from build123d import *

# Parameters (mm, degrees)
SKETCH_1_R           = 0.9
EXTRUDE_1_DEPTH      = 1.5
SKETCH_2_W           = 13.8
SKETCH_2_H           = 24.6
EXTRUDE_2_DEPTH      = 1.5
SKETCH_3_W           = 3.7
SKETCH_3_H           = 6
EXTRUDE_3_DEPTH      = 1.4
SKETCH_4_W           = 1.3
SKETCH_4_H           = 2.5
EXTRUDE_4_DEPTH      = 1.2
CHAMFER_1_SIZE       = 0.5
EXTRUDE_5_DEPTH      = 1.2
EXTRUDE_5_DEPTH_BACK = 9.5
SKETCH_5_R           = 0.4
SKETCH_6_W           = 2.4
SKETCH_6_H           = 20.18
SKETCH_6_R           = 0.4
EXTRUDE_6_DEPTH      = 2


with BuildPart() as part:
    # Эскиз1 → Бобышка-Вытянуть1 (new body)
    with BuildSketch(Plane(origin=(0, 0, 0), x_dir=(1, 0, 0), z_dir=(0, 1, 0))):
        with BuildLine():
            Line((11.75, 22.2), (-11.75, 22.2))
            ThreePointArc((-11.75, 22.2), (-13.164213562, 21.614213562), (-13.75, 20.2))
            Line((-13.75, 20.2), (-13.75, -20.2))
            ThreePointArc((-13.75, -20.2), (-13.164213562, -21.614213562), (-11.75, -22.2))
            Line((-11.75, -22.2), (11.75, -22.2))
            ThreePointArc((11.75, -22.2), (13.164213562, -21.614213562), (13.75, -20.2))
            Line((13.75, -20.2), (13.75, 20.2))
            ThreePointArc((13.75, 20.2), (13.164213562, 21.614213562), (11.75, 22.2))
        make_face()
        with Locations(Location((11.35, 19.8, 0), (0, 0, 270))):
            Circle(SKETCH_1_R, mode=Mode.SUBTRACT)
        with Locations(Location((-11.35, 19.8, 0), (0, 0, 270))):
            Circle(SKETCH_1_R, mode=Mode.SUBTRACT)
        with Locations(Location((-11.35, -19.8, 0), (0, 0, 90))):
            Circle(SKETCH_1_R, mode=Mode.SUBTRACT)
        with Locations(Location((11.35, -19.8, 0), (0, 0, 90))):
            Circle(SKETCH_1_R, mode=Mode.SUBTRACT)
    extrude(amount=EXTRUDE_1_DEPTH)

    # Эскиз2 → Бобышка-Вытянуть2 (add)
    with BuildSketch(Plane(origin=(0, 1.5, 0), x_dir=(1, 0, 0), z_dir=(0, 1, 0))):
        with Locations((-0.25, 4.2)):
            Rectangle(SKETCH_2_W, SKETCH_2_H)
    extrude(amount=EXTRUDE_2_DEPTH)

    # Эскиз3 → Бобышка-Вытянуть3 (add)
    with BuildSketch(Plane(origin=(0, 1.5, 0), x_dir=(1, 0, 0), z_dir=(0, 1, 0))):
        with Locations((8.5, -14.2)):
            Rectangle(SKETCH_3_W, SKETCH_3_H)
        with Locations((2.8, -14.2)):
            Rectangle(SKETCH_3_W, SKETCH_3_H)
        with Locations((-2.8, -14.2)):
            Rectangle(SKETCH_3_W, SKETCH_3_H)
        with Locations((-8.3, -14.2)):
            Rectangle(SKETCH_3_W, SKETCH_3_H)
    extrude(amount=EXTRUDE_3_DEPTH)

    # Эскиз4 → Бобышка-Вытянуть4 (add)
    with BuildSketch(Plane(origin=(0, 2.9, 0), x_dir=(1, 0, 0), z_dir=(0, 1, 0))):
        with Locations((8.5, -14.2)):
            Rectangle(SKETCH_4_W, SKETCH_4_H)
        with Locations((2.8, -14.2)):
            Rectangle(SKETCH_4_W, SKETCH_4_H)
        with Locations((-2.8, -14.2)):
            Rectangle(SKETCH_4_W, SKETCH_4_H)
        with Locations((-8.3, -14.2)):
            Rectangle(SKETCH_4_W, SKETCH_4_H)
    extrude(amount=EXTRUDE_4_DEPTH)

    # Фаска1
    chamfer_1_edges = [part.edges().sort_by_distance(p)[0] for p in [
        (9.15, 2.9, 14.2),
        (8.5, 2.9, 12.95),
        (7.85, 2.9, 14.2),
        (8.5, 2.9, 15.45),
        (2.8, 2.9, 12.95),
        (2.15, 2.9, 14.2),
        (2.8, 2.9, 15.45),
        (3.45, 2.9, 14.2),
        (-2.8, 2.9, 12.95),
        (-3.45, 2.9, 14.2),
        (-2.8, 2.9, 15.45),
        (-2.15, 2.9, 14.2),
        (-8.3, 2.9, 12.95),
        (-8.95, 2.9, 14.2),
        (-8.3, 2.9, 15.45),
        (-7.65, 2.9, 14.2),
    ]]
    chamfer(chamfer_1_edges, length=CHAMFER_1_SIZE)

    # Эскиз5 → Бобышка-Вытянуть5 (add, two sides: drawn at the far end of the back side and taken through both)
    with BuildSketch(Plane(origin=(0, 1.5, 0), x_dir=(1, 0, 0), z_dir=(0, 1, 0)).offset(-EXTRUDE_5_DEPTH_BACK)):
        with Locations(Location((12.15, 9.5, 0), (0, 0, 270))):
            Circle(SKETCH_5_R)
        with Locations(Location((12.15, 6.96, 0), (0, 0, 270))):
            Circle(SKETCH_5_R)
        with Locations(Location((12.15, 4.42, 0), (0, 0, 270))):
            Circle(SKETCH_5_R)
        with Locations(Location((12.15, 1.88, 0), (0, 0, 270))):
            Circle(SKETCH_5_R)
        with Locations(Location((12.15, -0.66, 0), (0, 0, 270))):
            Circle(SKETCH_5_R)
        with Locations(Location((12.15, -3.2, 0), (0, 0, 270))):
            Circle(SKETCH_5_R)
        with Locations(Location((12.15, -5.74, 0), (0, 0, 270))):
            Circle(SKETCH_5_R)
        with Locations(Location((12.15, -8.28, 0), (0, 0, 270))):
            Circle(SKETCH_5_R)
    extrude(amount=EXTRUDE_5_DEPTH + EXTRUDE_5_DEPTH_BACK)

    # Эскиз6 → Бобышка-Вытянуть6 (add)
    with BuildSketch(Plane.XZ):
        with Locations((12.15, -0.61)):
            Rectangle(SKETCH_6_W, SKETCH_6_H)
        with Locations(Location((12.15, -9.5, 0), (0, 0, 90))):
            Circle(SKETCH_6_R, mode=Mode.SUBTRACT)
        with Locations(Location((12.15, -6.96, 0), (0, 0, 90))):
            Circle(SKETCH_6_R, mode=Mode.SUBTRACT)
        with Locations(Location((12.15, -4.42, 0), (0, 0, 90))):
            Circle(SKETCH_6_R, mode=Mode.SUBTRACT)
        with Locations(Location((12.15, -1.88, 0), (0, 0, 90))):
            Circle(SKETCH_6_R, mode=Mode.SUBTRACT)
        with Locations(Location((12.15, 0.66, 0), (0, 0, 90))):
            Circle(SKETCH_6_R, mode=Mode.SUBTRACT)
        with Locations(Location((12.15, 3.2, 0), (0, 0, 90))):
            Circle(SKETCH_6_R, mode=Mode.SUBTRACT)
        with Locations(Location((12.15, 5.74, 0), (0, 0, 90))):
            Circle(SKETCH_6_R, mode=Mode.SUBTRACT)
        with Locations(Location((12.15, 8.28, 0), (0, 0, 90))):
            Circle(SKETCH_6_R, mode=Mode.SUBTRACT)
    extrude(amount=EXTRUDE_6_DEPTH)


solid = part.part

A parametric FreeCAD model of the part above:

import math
import FreeCAD as App
import Part
import Sketcher
from FreeCAD import Vector
Q = App.Units.Quantity


def edges_at(feature, points):
    """Names of the edges that pass closest to the given points."""
    edges = feature.Shape.Edges
    near = lambda p: min(range(len(edges)), key=lambda i: edges[i].distToShape(Part.Vertex(*p))[0])
    return sorted({f"Edge{near(p) + 1}" for p in points})


def add_polygon(sketch, points):
    """Adds a closed chain of lines whose ends are joined by coincident constraints."""
    first, n = sketch.GeometryCount, len(points)
    for a, b in zip(points, points[1:] + points[:1]):
        sketch.addGeometry(Part.LineSegment(App.Vector(*a, 0), App.Vector(*b, 0)), False)
    for i in range(n):
        sketch.addConstraint(Sketcher.Constraint("Coincident", first + i, 2, first + (i + 1) % n, 1))

doc = App.newDocument("Part")
body = doc.addObject("PartDesign::Body", "Body")

# Sketch on XZ plane
sketch1 = body.newObject("Sketcher::SketchObject", "Sketch")
sketch1.AttachmentSupport = (doc.getObject("XZ_Plane"), [""])
sketch1.MapMode = "FlatFace"
sketch1.addGeometry([
    Part.LineSegment(Vector(11.75, -22.2, 0), Vector(-11.75, -22.2, 0)),  # 0
    Part.ArcOfCircle(Part.Circle(Vector(-11.75, -20.2, 0), Vector(0, 0, 1), 2), math.radians(-180), math.radians(-90)),  # 1
    Part.LineSegment(Vector(-13.75, -20.2, 0), Vector(-13.75, 20.2, 0)),  # 2
    Part.ArcOfCircle(Part.Circle(Vector(-11.75, 20.2, 0), Vector(0, 0, 1), 2), math.radians(90), math.radians(180)),  # 3
    Part.LineSegment(Vector(-11.75, 22.2, 0), Vector(11.75, 22.2, 0)),  # 4
    Part.ArcOfCircle(Part.Circle(Vector(11.75, 20.2, 0), Vector(0, 0, 1), 2), math.radians(0), math.radians(90)),  # 5
    Part.LineSegment(Vector(13.75, 20.2, 0), Vector(13.75, -20.2, 0)),  # 6
    Part.ArcOfCircle(Part.Circle(Vector(11.75, -20.2, 0), Vector(0, 0, 1), 2), math.radians(-90), math.radians(0)),  # 7
    Part.Circle(Vector(-11.35, 19.8, 0), Vector(0, 0, 1), 0.9),  # 8
    Part.Circle(Vector(11.35, 19.8, 0), Vector(0, 0, 1), 0.9),  # 9
    Part.Circle(Vector(-11.35, -19.8, 0), Vector(0, 0, 1), 0.9),  # 10
    Part.Circle(Vector(11.35, -19.8, 0), Vector(0, 0, 1), 0.9),  # 11
], False)
sketch1.addConstraint([
    Sketcher.Constraint("Tangent", 0, 2, 1, 2),
    Sketcher.Constraint("Tangent", 1, 1, 2, 1),
    Sketcher.Constraint("Tangent", 2, 2, 3, 2),
    Sketcher.Constraint("Tangent", 3, 1, 4, 1),
    Sketcher.Constraint("Tangent", 4, 2, 5, 2),
    Sketcher.Constraint("Tangent", 5, 1, 6, 1),
    Sketcher.Constraint("Tangent", 6, 2, 7, 2),
    Sketcher.Constraint("Tangent", 7, 1, 0, 1),
    Sketcher.Constraint("Horizontal", 0),
    Sketcher.Constraint("Vertical", 2),
    Sketcher.Constraint("Horizontal", 4),
    Sketcher.Constraint("Vertical", 6),
    Sketcher.Constraint("Equal", 1, 3),
    Sketcher.Constraint("Equal", 3, 5),
    Sketcher.Constraint("Equal", 5, 7),
    Sketcher.Constraint("Equal", 8, 9),
    Sketcher.Constraint("Equal", 9, 10),
    Sketcher.Constraint("Equal", 10, 11),
    Sketcher.Constraint("Symmetric", 1, 3, 5, 3, -1, 1),
    Sketcher.Constraint("Symmetric", 9, 3, 10, 3, -1, 1),
    Sketcher.Constraint("Symmetric", 8, 3, 11, 3, -1, 1),
    Sketcher.Constraint("Symmetric", 8, 3, 9, 3, -2),
    Sketcher.Constraint("Radius", 1, Q("2 mm")),
    Sketcher.Constraint("Diameter", 8, Q("1.8 mm")),
    Sketcher.Constraint("DistanceX", 0, 2, 0, 1, Q("23.5 mm")),
    Sketcher.Constraint("DistanceY", 2, 1, 2, 2, Q("40.4 mm")),
    Sketcher.Constraint("DistanceY", 1, 3, 8, 3, Q("40 mm")),
    Sketcher.Constraint("DistanceX", 3, 3, 8, 3, Q("0.4 mm")),
])
pad1 = body.newObject("PartDesign::Pad", "Pad")
pad1.Profile = sketch1
pad1.Length = 1.5
pad1.Reversed = True

# Sketch on XZ plane
sketch2 = body.newObject("Sketcher::SketchObject", "Sketch001")
sketch2.AttachmentSupport = (doc.getObject("XZ_Plane"), [""])
sketch2.MapMode = "FlatFace"
sketch2.AttachmentOffset = App.Placement(Vector(0, 0, -1.5), App.Rotation())
add_polygon(sketch2, [(-7.15, -16.5), (-7.15, 8.1), (6.65, 8.1), (6.65, -16.5)])  # lines 0-3
sketch2.addConstraint([
    Sketcher.Constraint("Vertical", 0),
    Sketcher.Constraint("Horizontal", 1),
    Sketcher.Constraint("Vertical", 2),
    Sketcher.Constraint("Horizontal", 3),
    Sketcher.Constraint("DistanceX", 1, 1, 1, 2, Q("13.8 mm")),
    Sketcher.Constraint("DistanceY", 0, 1, 0, 2, Q("24.6 mm")),
    Sketcher.Constraint("DistanceY", -1, 1, 0, 2, Q("8.1 mm")),
    Sketcher.Constraint("DistanceX", 0, 2, -1, 1, Q("7.15 mm")),
])
pad2 = body.newObject("PartDesign::Pad", "Pad001")
pad2.Profile = sketch2
pad2.Length = 1.5
pad2.Reversed = True

# Sketch on XZ plane
sketch3 = body.newObject("Sketcher::SketchObject", "Sketch002")
sketch3.AttachmentSupport = (doc.getObject("XZ_Plane"), [""])
sketch3.MapMode = "FlatFace"
sketch3.AttachmentOffset = App.Placement(Vector(0, 0, -1.5), App.Rotation())
add_polygon(sketch3, [(6.65, 11.2), (6.65, 17.2), (10.35, 17.2), (10.35, 11.2)])  # lines 0-3
add_polygon(sketch3, [(0.95, 11.2), (0.95, 17.2), (4.65, 17.2), (4.65, 11.2)])  # lines 4-7
add_polygon(sketch3, [(-4.65, 11.2), (-4.65, 17.2), (-0.95, 17.2), (-0.95, 11.2)])  # lines 8-11
add_polygon(sketch3, [(-10.15, 11.2), (-10.15, 17.2), (-6.45, 17.2), (-6.45, 11.2)])  # lines 12-15
sketch3.addConstraint([
    Sketcher.Constraint("Vertical", 0),
    Sketcher.Constraint("Horizontal", 1),
    Sketcher.Constraint("Vertical", 2),
    Sketcher.Constraint("Horizontal", 3),
    Sketcher.Constraint("Vertical", 4),
    Sketcher.Constraint("Horizontal", 5),
    Sketcher.Constraint("Vertical", 6),
    Sketcher.Constraint("Horizontal", 7),
    Sketcher.Constraint("Vertical", 8),
    Sketcher.Constraint("Horizontal", 9),
    Sketcher.Constraint("Vertical", 10),
    Sketcher.Constraint("Horizontal", 11),
    Sketcher.Constraint("Vertical", 12),
    Sketcher.Constraint("Horizontal", 13),
    Sketcher.Constraint("Vertical", 14),
    Sketcher.Constraint("Horizontal", 15),
    Sketcher.Constraint("Symmetric", 5, 2, 8, 2, -2),
    Sketcher.Constraint("Symmetric", 7, 2, 10, 2, -2),
    Sketcher.Constraint("Horizontal", 1, 2, 4, 2),
    Sketcher.Constraint("Horizontal", 3, 2, 6, 2),
    Sketcher.Constraint("Horizontal", 9, 2, 12, 2),
    Sketcher.Constraint("Horizontal", 11, 2, 14, 2),
    Sketcher.Constraint("Equal", 3, 5),
    Sketcher.Constraint("Equal", 11, 13),
    Sketcher.Constraint("DistanceY", 0, 1, 0, 2, Q("6 mm")),
    Sketcher.Constraint("DistanceX", 1, 1, 1, 2, Q("3.7 mm")),
    Sketcher.Constraint("DistanceX", 5, 2, 0, 2, Q("2 mm")),
    Sketcher.Constraint("DistanceY", -1, 1, 0, 2, Q("17.2 mm")),
    Sketcher.Constraint("DistanceX", 8, 2, 4, 2, Q("5.6 mm")),
    Sketcher.Constraint("DistanceX", 12, 2, 8, 2, Q("5.5 mm")),
])
pad3 = body.newObject("PartDesign::Pad", "Pad002")
pad3.Profile = sketch3
pad3.Length = 1.4
pad3.Reversed = True

# Sketch on XZ plane
sketch4 = body.newObject("Sketcher::SketchObject", "Sketch003")
sketch4.AttachmentSupport = (doc.getObject("XZ_Plane"), [""])
sketch4.MapMode = "FlatFace"
sketch4.AttachmentOffset = App.Placement(Vector(0, 0, -2.9), App.Rotation())
add_polygon(sketch4, [(7.85, 12.95), (7.85, 15.45), (9.15, 15.45), (9.15, 12.95)])  # lines 0-3
add_polygon(sketch4, [(2.15, 12.95), (2.15, 15.45), (3.45, 15.45), (3.45, 12.95)])  # lines 4-7
add_polygon(sketch4, [(-3.45, 12.95), (-3.45, 15.45), (-2.15, 15.45), (-2.15, 12.95)])  # lines 8-11
add_polygon(sketch4, [(-8.95, 12.95), (-8.95, 15.45), (-7.65, 15.45), (-7.65, 12.95)])  # lines 12-15
sketch4.addConstraint([
    Sketcher.Constraint("Vertical", 0),
    Sketcher.Constraint("Horizontal", 1),
    Sketcher.Constraint("Vertical", 2),
    Sketcher.Constraint("Horizontal", 3),
    Sketcher.Constraint("Vertical", 4),
    Sketcher.Constraint("Horizontal", 5),
    Sketcher.Constraint("Vertical", 6),
    Sketcher.Constraint("Horizontal", 7),
    Sketcher.Constraint("Vertical", 8),
    Sketcher.Constraint("Horizontal", 9),
    Sketcher.Constraint("Vertical", 10),
    Sketcher.Constraint("Horizontal", 11),
    Sketcher.Constraint("Vertical", 12),
    Sketcher.Constraint("Horizontal", 13),
    Sketcher.Constraint("Vertical", 14),
    Sketcher.Constraint("Horizontal", 15),
    Sketcher.Constraint("Symmetric", 5, 2, 8, 2, -2),
    Sketcher.Constraint("Symmetric", 7, 2, 10, 2, -2),
    Sketcher.Constraint("Horizontal", 1, 2, 4, 2),
    Sketcher.Constraint("Horizontal", 3, 2, 6, 2),
    Sketcher.Constraint("Horizontal", 9, 2, 12, 2),
    Sketcher.Constraint("Horizontal", 11, 2, 14, 2),
    Sketcher.Constraint("Equal", 3, 5),
    Sketcher.Constraint("Equal", 11, 13),
    Sketcher.Constraint("DistanceX", 1, 1, 1, 2, Q("1.3 mm")),
    Sketcher.Constraint("DistanceY", 0, 1, 0, 2, Q("2.5 mm")),
    Sketcher.Constraint("DistanceX", 4, 2, 1, 2, Q("7 mm")),
    Sketcher.Constraint("DistanceX", 8, 2, 4, 2, Q("5.6 mm")),
    Sketcher.Constraint("DistanceX", 12, 2, 8, 2, Q("5.5 mm")),
    Sketcher.Constraint("DistanceY", -1, 1, 0, 2, Q("15.45 mm")),
])
pad4 = body.newObject("PartDesign::Pad", "Pad003")
pad4.Profile = sketch4
pad4.Length = 1.2
pad4.Reversed = True
doc.recompute()

chamfer = body.newObject("PartDesign::Chamfer", "Chamfer")
chamfer.Base = (pad4, edges_at(pad4, [
    (9.15, 2.9, 14.2),
    (8.5, 2.9, 12.95),
    (7.85, 2.9, 14.2),
    (8.5, 2.9, 15.45),
    (2.8, 2.9, 12.95),
    (2.15, 2.9, 14.2),
    (2.8, 2.9, 15.45),
    (3.45, 2.9, 14.2),
    (-2.8, 2.9, 12.95),
    (-3.45, 2.9, 14.2),
    (-2.8, 2.9, 15.45),
    (-2.15, 2.9, 14.2),
    (-8.3, 2.9, 12.95),
    (-8.95, 2.9, 14.2),
    (-8.3, 2.9, 15.45),
    (-7.65, 2.9, 14.2),
]))
chamfer.Size = 0.5

# Sketch on XZ plane
sketch5 = body.newObject("Sketcher::SketchObject", "Sketch004")
sketch5.AttachmentSupport = (doc.getObject("XZ_Plane"), [""])
sketch5.MapMode = "FlatFace"
sketch5.AttachmentOffset = App.Placement(Vector(0, 0, -1.5), App.Rotation())
sketch5.addGeometry([
    Part.Circle(Vector(12.15, -9.5, 0), Vector(0, 0, 1), 0.4),  # 0
    Part.Circle(Vector(12.15, -6.96, 0), Vector(0, 0, 1), 0.4),  # 1
    Part.Circle(Vector(12.15, -4.42, 0), Vector(0, 0, 1), 0.4),  # 2
    Part.Circle(Vector(12.15, -1.88, 0), Vector(0, 0, 1), 0.4),  # 3
    Part.Circle(Vector(12.15, 0.66, 0), Vector(0, 0, 1), 0.4),  # 4
    Part.Circle(Vector(12.15, 3.2, 0), Vector(0, 0, 1), 0.4),  # 5
    Part.Circle(Vector(12.15, 5.74, 0), Vector(0, 0, 1), 0.4),  # 6
    Part.Circle(Vector(12.15, 8.28, 0), Vector(0, 0, 1), 0.4),  # 7
], False)
sketch5.addConstraint([
    Sketcher.Constraint("Equal", 0, 1),
    Sketcher.Constraint("Equal", 1, 2),
    Sketcher.Constraint("Equal", 2, 3),
    Sketcher.Constraint("Equal", 3, 4),
    Sketcher.Constraint("Equal", 4, 5),
    Sketcher.Constraint("Equal", 5, 6),
    Sketcher.Constraint("Equal", 6, 7),
    Sketcher.Constraint("Vertical", 0, 3, 1, 3),
    Sketcher.Constraint("Vertical", 1, 3, 2, 3),
    Sketcher.Constraint("Vertical", 2, 3, 3, 3),
    Sketcher.Constraint("Vertical", 3, 3, 4, 3),
    Sketcher.Constraint("Vertical", 4, 3, 5, 3),
    Sketcher.Constraint("Vertical", 5, 3, 6, 3),
    Sketcher.Constraint("Vertical", 6, 3, 7, 3),
    Sketcher.Constraint("Diameter", 0, Q("0.8 mm")),
    Sketcher.Constraint("DistanceY", 0, 3, -1, 1, Q("9.5 mm")),
    Sketcher.Constraint("DistanceY", -1, 1, 5, 3, Q("3.2 mm")),
    Sketcher.Constraint("DistanceY", 1, 3, 6, 3, Q("12.7 mm")),
    Sketcher.Constraint("DistanceY", 2, 3, 7, 3, Q("12.7 mm")),
    Sketcher.Constraint("DistanceX", -1, 1, 0, 3, Q("12.15 mm")),
    Sketcher.Constraint("DistanceY", 1, 3, -1, 1, Q("6.96 mm")),
    Sketcher.Constraint("DistanceY", 2, 3, -1, 1, Q("4.42 mm")),
    Sketcher.Constraint("DistanceY", 3, 3, -1, 1, Q("1.88 mm")),
    Sketcher.Constraint("DistanceY", -1, 1, 4, 3, Q("0.66 mm")),
])
pad5 = body.newObject("PartDesign::Pad", "Pad004")
pad5.Profile = sketch5
pad5.Type = "TwoLengths"
pad5.Length = 1.2
pad5.Length2 = 9.5
pad5.Reversed = True

# Sketch on XZ plane
sketch6 = body.newObject("Sketcher::SketchObject", "Sketch005")
sketch6.AttachmentSupport = (doc.getObject("XZ_Plane"), [""])
sketch6.MapMode = "FlatFace"
add_polygon(sketch6, [(10.95, 9.48), (10.95, -10.7), (13.35, -10.7), (13.35, 9.48)])  # lines 0-3
sketch6.addGeometry(Part.Circle(Vector(12.15, -9.5, 0), Vector(0, 0, 1), 0.4), False)  # 4
sketch6.addGeometry(Part.Circle(Vector(12.15, -6.96, 0), Vector(0, 0, 1), 0.4), False)  # 5
sketch6.addGeometry(Part.Circle(Vector(12.15, -4.42, 0), Vector(0, 0, 1), 0.4), False)  # 6
sketch6.addGeometry(Part.Circle(Vector(12.15, -1.88, 0), Vector(0, 0, 1), 0.4), False)  # 7
sketch6.addGeometry(Part.Circle(Vector(12.15, 0.66, 0), Vector(0, 0, 1), 0.4), False)  # 8
sketch6.addGeometry(Part.Circle(Vector(12.15, 3.2, 0), Vector(0, 0, 1), 0.4), False)  # 9
sketch6.addGeometry(Part.Circle(Vector(12.15, 5.74, 0), Vector(0, 0, 1), 0.4), False)  # 10
sketch6.addGeometry(Part.Circle(Vector(12.15, 8.28, 0), Vector(0, 0, 1), 0.4), False)  # 11
sketch6.addConstraint([
    Sketcher.Constraint("Vertical", 0),
    Sketcher.Constraint("Horizontal", 1),
    Sketcher.Constraint("Vertical", 2),
    Sketcher.Constraint("Horizontal", 3),
    Sketcher.Constraint("Equal", 4, 5),
    Sketcher.Constraint("Equal", 5, 6),
    Sketcher.Constraint("Equal", 6, 7),
    Sketcher.Constraint("Equal", 7, 8),
    Sketcher.Constraint("Equal", 8, 9),
    Sketcher.Constraint("Equal", 9, 10),
    Sketcher.Constraint("Equal", 10, 11),
    Sketcher.Constraint("Vertical", 4, 3, 5, 3),
    Sketcher.Constraint("Vertical", 5, 3, 6, 3),
    Sketcher.Constraint("Vertical", 6, 3, 7, 3),
    Sketcher.Constraint("Vertical", 7, 3, 8, 3),
    Sketcher.Constraint("Vertical", 8, 3, 9, 3),
    Sketcher.Constraint("Vertical", 9, 3, 10, 3),
    Sketcher.Constraint("Vertical", 10, 3, 11, 3),
    Sketcher.Constraint("Diameter", 4, Q("0.8 mm")),
    Sketcher.Constraint("DistanceX", 1, 1, 1, 2, Q("2.4 mm")),
    Sketcher.Constraint("DistanceY", 0, 2, 0, 1, Q("20.18 mm")),
    Sketcher.Constraint("DistanceY", 4, 3, -1, 1, Q("9.5 mm")),
    Sketcher.Constraint("DistanceY", -1, 1, 9, 3, Q("3.2 mm")),
    Sketcher.Constraint("DistanceY", 0, 2, -1, 1, Q("10.7 mm")),
    Sketcher.Constraint("DistanceY", 5, 3, 10, 3, Q("12.7 mm")),
    Sketcher.Constraint("DistanceY", 6, 3, 11, 3, Q("12.7 mm")),
    Sketcher.Constraint("DistanceX", 0, 2, 4, 3, Q("1.2 mm")),
    Sketcher.Constraint("DistanceY", 11, 3, 2, 2, Q("1.2 mm")),
    Sketcher.Constraint("DistanceX", -1, 1, 4, 3, Q("12.15 mm")),
    Sketcher.Constraint("DistanceY", 5, 3, -1, 1, Q("6.96 mm")),
    Sketcher.Constraint("DistanceY", 7, 3, -1, 1, Q("1.88 mm")),
    Sketcher.Constraint("DistanceY", -1, 1, 8, 3, Q("0.66 mm")),
])
pad6 = body.newObject("PartDesign::Pad", "Pad005")
pad6.Profile = sketch6
pad6.Length = 2

doc.recompute()
